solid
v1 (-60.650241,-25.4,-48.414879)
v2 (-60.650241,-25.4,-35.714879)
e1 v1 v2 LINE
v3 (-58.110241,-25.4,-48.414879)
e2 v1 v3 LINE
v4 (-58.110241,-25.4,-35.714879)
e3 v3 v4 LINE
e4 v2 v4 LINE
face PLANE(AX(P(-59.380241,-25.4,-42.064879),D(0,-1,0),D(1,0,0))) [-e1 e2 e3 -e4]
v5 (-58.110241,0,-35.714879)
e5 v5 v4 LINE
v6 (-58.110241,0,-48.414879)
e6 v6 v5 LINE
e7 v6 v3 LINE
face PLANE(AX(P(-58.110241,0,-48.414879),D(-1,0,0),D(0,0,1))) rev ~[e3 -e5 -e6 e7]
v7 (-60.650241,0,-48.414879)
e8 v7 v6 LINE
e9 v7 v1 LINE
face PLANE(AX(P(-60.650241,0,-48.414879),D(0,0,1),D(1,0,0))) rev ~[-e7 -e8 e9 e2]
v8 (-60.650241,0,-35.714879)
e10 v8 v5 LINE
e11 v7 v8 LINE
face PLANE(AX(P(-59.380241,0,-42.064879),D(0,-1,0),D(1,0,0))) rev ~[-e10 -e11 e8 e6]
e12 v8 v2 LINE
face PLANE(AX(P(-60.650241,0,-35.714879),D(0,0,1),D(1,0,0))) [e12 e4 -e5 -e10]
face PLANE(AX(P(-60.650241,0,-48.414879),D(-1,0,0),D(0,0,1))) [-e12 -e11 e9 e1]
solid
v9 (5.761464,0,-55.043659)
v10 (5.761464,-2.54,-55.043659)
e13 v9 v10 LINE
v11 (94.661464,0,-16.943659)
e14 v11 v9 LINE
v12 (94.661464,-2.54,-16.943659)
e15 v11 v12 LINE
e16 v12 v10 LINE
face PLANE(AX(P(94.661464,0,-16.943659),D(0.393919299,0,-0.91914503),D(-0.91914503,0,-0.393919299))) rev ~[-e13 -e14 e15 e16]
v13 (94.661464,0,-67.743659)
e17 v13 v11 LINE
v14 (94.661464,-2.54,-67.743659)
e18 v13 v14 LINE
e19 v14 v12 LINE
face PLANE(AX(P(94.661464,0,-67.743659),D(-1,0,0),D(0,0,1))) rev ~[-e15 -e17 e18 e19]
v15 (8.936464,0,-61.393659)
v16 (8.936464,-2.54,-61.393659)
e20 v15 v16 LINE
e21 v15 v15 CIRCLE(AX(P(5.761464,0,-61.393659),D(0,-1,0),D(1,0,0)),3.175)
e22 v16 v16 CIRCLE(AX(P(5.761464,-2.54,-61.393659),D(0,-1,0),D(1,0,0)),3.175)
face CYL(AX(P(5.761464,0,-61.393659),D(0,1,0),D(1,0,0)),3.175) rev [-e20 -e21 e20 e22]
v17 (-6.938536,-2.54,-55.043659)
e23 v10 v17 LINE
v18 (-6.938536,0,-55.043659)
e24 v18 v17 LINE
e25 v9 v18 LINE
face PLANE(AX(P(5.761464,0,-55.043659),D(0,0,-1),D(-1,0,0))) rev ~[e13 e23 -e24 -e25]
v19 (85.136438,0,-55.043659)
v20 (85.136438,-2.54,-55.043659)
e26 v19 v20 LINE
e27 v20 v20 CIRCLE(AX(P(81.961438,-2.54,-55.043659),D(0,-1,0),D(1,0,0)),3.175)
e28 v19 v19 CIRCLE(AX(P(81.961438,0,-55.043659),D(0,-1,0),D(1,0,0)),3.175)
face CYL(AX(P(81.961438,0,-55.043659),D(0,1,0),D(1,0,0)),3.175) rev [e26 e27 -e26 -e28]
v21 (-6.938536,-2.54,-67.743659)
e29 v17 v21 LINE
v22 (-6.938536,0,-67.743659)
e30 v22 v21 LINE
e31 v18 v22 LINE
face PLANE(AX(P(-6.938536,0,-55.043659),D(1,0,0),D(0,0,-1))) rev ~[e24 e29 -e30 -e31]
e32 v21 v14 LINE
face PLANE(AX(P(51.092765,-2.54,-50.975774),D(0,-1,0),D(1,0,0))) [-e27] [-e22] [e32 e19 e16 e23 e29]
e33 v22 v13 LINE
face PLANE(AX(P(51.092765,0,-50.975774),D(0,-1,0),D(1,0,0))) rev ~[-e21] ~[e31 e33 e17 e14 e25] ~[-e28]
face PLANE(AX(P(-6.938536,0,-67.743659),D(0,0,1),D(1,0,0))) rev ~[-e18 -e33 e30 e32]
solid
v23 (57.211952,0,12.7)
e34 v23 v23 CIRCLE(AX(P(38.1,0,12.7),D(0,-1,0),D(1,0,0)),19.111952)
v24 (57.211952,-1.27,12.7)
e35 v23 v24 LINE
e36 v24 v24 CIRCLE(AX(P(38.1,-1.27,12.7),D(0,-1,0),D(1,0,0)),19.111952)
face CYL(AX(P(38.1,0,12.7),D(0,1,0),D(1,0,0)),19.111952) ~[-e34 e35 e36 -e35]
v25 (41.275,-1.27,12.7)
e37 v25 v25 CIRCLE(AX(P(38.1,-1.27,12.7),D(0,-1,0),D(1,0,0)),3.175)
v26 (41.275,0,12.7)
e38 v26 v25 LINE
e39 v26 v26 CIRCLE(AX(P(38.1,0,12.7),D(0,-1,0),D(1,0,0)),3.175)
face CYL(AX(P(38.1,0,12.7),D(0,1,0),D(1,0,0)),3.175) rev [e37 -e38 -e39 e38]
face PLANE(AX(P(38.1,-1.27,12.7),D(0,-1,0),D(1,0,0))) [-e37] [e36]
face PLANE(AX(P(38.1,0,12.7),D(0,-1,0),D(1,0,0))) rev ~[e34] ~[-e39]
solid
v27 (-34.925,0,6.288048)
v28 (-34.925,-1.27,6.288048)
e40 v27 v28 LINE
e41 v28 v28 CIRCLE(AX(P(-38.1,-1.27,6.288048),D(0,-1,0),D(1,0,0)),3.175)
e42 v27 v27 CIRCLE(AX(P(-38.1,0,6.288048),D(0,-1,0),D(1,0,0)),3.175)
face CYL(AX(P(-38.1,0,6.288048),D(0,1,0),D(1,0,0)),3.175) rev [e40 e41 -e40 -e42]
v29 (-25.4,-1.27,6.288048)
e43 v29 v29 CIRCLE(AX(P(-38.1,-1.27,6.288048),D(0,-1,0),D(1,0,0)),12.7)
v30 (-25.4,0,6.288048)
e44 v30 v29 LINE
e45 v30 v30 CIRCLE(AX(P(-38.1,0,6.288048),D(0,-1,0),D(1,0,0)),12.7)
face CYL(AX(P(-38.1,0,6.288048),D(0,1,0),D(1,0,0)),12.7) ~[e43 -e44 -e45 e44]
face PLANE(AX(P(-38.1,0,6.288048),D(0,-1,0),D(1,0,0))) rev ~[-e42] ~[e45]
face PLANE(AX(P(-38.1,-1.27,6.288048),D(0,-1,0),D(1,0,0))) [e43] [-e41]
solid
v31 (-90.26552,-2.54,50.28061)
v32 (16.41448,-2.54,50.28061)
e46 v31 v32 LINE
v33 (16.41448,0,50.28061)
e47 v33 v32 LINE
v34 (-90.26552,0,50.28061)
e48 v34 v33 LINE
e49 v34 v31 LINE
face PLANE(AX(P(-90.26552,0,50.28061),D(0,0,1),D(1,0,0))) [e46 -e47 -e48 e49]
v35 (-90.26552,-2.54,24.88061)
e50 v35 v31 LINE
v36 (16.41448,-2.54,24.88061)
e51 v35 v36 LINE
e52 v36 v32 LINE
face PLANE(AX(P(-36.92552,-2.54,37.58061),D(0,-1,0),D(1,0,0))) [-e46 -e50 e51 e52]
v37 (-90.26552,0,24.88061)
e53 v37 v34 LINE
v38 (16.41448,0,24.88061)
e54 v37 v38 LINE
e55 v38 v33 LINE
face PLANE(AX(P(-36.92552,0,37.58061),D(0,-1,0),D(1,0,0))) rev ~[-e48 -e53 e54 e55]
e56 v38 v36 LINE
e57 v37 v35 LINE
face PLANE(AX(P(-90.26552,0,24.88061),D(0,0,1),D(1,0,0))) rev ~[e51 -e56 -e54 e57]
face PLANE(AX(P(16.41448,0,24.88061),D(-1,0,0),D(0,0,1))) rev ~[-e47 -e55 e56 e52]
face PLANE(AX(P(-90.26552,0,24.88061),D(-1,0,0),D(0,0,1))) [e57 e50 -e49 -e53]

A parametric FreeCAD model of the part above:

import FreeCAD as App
import Part
import Sketcher
Q = App.Units.Quantity

doc = App.newDocument("Part")
body = doc.addObject("PartDesign::Body", "Body")
body.AllowCompound = True

sketch1 = doc.addObject("Sketcher::SketchObject", "Sketch")
body.addObject(sketch1)
sketch1.AttachmentSupport = (doc.XZ_Plane, [""])
sketch1.MapMode = "FlatFace"
sketch1.addGeometry([
    Part.Circle(App.Vector(-38.1, 6.3, 0), App.Vector(0, 0, 1), 12.7),
    Part.Circle(App.Vector(-38.1, 6.3, 0), App.Vector(0, 0, 1), 3.2),
    Part.Circle(App.Vector(38.1, 12.7, 0), App.Vector(0, 0, 1), 19.1),
    Part.Circle(App.Vector(38.1, 12.7, 0), App.Vector(0, 0, 1), 3.2),
], False)
sketch1.addConstraint([
    Sketcher.Constraint("Coincident", 1, 3, 0, 3),
    Sketcher.Constraint("Coincident", 3, 3, 2, 3),
    Sketcher.Constraint("Equal", 1, 3),
    Sketcher.Constraint("Diameter", 0, Q("1 in")),
    Sketcher.Constraint("Diameter", 1, Q("0.25 in")),
    Sketcher.Constraint("DistanceX", 0, 3, 2, 3, Q("3 in")),
    Sketcher.Constraint("DistanceX", 0, 3, -1, 1, Q("1.5 in")),
    Sketcher.Constraint("DistanceY", -1, 1, 2, 3, Q("0.5 in")),
    Sketcher.Constraint("Diameter", 2, Q("38.223904 mm")),
    Sketcher.Constraint("DistanceY", 0, 3, 2, 3, Q("6.411952 mm")),
])
pad1 = doc.addObject("PartDesign::Pad", "Pad")
body.addObject(pad1)
pad1.Profile = sketch1
pad1.Length = Q("0.05 in")
body2 = doc.addObject("PartDesign::Body", "Body001")

sketch2 = doc.addObject("Sketcher::SketchObject", "Sketch001")
body2.addObject(sketch2)
sketch2.AttachmentSupport = (doc.getObject("XZ_Plane001"), [""])
sketch2.MapMode = "FlatFace"
sketch2.addGeometry([
    Part.LineSegment(App.Vector(-6.9, -67.7, 0), App.Vector(94.7, -67.7, 0)),
    Part.LineSegment(App.Vector(94.7, -67.7, 0), App.Vector(94.7, -16.9, 0)),
    Part.LineSegment(App.Vector(94.7, -16.9, 0), App.Vector(5.8, -55, 0)),
    Part.LineSegment(App.Vector(5.8, -55, 0), App.Vector(-6.9, -55, 0)),
    Part.LineSegment(App.Vector(-6.9, -55, 0), App.Vector(-6.9, -67.7, 0)),
    Part.Circle(App.Vector(5.8, -61.4, 0), App.Vector(0, 0, 1), 3.2),
    Part.Circle(App.Vector(82, -55, 0), App.Vector(0, 0, 1), 3.2),
], False)
sketch2.addConstraint([
    Sketcher.Constraint("Coincident", 0, 2, 1, 1),
    Sketcher.Constraint("Coincident", 1, 2, 2, 1),
    Sketcher.Constraint("Coincident", 2, 2, 3, 1),
    Sketcher.Constraint("Coincident", 3, 2, 4, 1),
    Sketcher.Constraint("Coincident", 4, 2, 0, 1),
    Sketcher.Constraint("Horizontal", 0),
    Sketcher.Constraint("Vertical", 1),
    Sketcher.Constraint("Horizontal", 3),
    Sketcher.Constraint("Vertical", 4),
    Sketcher.Constraint("Equal", 5, 6),
    Sketcher.Constraint("Horizontal", 6, 3, 2, 2),
    Sketcher.Constraint("Vertical", 5, 3, 2, 2),
    Sketcher.Constraint("Equal", 3, 4),
    Sketcher.Constraint("Diameter", 5, Q("0.25 in")),
    Sketcher.Constraint("DistanceX", 0, 1, 0, 2, Q("4 in")),
    Sketcher.Constraint("DistanceY", 1, 1, 1, 2, Q("2 in")),
    Sketcher.Constraint("DistanceX", 3, 2, 3, 1, Q("0.5 in")),
    Sketcher.Constraint("DistanceY", 5, 3, 6, 3, Q("0.25 in")),
    Sketcher.Constraint("DistanceY", 5, 3, -1, 1, Q("61.393659 mm")),
    Sketcher.Constraint("DistanceX", -1, 1, 6, 3, Q("81.961438 mm")),
    Sketcher.Constraint("DistanceX", -1, 1, 5, 3, Q("5.761464 mm")),
])
pad2 = doc.addObject("PartDesign::Pad", "Pad001")
body2.addObject(pad2)
pad2.Profile = sketch2
pad2.Length = Q("0.1 in")
body3 = doc.addObject("PartDesign::Body", "Body002")

sketch3 = doc.addObject("Sketcher::SketchObject", "Sketch002")
body3.addObject(sketch3)
sketch3.AttachmentSupport = (doc.getObject("XZ_Plane002"), [""])
sketch3.MapMode = "FlatFace"
sketch3.addGeometry([
    Part.LineSegment(App.Vector(-60.7, -35.7, 0), App.Vector(-60.7, -48.4, 0)),
    Part.LineSegment(App.Vector(-60.7, -48.4, 0), App.Vector(-58.1, -48.4, 0)),
    Part.LineSegment(App.Vector(-58.1, -48.4, 0), App.Vector(-58.1, -35.7, 0)),
    Part.LineSegment(App.Vector(-58.1, -35.7, 0), App.Vector(-60.7, -35.7, 0)),
], False)
sketch3.addConstraint([
    Sketcher.Constraint("Coincident", 0, 2, 1, 1),
    Sketcher.Constraint("Coincident", 1, 2, 2, 1),
    Sketcher.Constraint("Coincident", 2, 2, 3, 1),
    Sketcher.Constraint("Coincident", 3, 2, 0, 1),
    Sketcher.Constraint("Vertical", 0),
    Sketcher.Constraint("Horizontal", 1),
    Sketcher.Constraint("Vertical", 2),
    Sketcher.Constraint("Horizontal", 3),
    Sketcher.Constraint("DistanceX", 1, 1, 1, 2, Q("0.1 in")),
    Sketcher.Constraint("DistanceY", 0, 2, 0, 1, Q("0.5 in")),
    Sketcher.Constraint("DistanceX", 0, 2, -1, 1, Q("60.650241 mm")),
    Sketcher.Constraint("DistanceY", 0, 2, -1, 1, Q("48.414879 mm")),
])
pad3 = doc.addObject("PartDesign::Pad", "Pad002")
body3.addObject(pad3)
pad3.Profile = sketch3
pad3.Length = Q("1 in")
body4 = doc.addObject("PartDesign::Body", "Body003")

sketch4 = doc.addObject("Sketcher::SketchObject", "Sketch003")
body4.addObject(sketch4)
sketch4.AttachmentSupport = (doc.getObject("XZ_Plane003"), [""])
sketch4.MapMode = "FlatFace"
sketch4.addGeometry([
    Part.LineSegment(App.Vector(-90, 50, 0), App.Vector(-90, 25, 0)),
    Part.LineSegment(App.Vector(-90, 25, 0), App.Vector(16, 25, 0)),
    Part.LineSegment(App.Vector(16, 25, 0), App.Vector(16, 50, 0)),
    Part.LineSegment(App.Vector(16, 50, 0), App.Vector(-90, 50, 0)),
], False)
sketch4.addConstraint([
    Sketcher.Constraint("Coincident", 0, 2, 1, 1),
    Sketcher.Constraint("Coincident", 1, 2, 2, 1),
    Sketcher.Constraint("Coincident", 2, 2, 3, 1),
    Sketcher.Constraint("Coincident", 3, 2, 0, 1),
    Sketcher.Constraint("Vertical", 0),
    Sketcher.Constraint("Horizontal", 1),
    Sketcher.Constraint("Vertical", 2),
    Sketcher.Constraint("Horizontal", 3),
    Sketcher.Constraint("DistanceY", 0, 2, 0, 1, Q("1 in")),
    Sketcher.Constraint("DistanceX", 1, 1, 1, 2, Q("4.2 in")),
    Sketcher.Constraint("DistanceX", 0, 2, -1, 1, Q("90.26552 mm")),
    Sketcher.Constraint("DistanceY", -1, 1, 0, 2, Q("24.88061 mm")),
])
pad4 = doc.addObject("PartDesign::Pad", "Pad003")
body4.addObject(pad4)
pad4.Profile = sketch4
pad4.Length = Q("0.1 in")

doc.recompute()
